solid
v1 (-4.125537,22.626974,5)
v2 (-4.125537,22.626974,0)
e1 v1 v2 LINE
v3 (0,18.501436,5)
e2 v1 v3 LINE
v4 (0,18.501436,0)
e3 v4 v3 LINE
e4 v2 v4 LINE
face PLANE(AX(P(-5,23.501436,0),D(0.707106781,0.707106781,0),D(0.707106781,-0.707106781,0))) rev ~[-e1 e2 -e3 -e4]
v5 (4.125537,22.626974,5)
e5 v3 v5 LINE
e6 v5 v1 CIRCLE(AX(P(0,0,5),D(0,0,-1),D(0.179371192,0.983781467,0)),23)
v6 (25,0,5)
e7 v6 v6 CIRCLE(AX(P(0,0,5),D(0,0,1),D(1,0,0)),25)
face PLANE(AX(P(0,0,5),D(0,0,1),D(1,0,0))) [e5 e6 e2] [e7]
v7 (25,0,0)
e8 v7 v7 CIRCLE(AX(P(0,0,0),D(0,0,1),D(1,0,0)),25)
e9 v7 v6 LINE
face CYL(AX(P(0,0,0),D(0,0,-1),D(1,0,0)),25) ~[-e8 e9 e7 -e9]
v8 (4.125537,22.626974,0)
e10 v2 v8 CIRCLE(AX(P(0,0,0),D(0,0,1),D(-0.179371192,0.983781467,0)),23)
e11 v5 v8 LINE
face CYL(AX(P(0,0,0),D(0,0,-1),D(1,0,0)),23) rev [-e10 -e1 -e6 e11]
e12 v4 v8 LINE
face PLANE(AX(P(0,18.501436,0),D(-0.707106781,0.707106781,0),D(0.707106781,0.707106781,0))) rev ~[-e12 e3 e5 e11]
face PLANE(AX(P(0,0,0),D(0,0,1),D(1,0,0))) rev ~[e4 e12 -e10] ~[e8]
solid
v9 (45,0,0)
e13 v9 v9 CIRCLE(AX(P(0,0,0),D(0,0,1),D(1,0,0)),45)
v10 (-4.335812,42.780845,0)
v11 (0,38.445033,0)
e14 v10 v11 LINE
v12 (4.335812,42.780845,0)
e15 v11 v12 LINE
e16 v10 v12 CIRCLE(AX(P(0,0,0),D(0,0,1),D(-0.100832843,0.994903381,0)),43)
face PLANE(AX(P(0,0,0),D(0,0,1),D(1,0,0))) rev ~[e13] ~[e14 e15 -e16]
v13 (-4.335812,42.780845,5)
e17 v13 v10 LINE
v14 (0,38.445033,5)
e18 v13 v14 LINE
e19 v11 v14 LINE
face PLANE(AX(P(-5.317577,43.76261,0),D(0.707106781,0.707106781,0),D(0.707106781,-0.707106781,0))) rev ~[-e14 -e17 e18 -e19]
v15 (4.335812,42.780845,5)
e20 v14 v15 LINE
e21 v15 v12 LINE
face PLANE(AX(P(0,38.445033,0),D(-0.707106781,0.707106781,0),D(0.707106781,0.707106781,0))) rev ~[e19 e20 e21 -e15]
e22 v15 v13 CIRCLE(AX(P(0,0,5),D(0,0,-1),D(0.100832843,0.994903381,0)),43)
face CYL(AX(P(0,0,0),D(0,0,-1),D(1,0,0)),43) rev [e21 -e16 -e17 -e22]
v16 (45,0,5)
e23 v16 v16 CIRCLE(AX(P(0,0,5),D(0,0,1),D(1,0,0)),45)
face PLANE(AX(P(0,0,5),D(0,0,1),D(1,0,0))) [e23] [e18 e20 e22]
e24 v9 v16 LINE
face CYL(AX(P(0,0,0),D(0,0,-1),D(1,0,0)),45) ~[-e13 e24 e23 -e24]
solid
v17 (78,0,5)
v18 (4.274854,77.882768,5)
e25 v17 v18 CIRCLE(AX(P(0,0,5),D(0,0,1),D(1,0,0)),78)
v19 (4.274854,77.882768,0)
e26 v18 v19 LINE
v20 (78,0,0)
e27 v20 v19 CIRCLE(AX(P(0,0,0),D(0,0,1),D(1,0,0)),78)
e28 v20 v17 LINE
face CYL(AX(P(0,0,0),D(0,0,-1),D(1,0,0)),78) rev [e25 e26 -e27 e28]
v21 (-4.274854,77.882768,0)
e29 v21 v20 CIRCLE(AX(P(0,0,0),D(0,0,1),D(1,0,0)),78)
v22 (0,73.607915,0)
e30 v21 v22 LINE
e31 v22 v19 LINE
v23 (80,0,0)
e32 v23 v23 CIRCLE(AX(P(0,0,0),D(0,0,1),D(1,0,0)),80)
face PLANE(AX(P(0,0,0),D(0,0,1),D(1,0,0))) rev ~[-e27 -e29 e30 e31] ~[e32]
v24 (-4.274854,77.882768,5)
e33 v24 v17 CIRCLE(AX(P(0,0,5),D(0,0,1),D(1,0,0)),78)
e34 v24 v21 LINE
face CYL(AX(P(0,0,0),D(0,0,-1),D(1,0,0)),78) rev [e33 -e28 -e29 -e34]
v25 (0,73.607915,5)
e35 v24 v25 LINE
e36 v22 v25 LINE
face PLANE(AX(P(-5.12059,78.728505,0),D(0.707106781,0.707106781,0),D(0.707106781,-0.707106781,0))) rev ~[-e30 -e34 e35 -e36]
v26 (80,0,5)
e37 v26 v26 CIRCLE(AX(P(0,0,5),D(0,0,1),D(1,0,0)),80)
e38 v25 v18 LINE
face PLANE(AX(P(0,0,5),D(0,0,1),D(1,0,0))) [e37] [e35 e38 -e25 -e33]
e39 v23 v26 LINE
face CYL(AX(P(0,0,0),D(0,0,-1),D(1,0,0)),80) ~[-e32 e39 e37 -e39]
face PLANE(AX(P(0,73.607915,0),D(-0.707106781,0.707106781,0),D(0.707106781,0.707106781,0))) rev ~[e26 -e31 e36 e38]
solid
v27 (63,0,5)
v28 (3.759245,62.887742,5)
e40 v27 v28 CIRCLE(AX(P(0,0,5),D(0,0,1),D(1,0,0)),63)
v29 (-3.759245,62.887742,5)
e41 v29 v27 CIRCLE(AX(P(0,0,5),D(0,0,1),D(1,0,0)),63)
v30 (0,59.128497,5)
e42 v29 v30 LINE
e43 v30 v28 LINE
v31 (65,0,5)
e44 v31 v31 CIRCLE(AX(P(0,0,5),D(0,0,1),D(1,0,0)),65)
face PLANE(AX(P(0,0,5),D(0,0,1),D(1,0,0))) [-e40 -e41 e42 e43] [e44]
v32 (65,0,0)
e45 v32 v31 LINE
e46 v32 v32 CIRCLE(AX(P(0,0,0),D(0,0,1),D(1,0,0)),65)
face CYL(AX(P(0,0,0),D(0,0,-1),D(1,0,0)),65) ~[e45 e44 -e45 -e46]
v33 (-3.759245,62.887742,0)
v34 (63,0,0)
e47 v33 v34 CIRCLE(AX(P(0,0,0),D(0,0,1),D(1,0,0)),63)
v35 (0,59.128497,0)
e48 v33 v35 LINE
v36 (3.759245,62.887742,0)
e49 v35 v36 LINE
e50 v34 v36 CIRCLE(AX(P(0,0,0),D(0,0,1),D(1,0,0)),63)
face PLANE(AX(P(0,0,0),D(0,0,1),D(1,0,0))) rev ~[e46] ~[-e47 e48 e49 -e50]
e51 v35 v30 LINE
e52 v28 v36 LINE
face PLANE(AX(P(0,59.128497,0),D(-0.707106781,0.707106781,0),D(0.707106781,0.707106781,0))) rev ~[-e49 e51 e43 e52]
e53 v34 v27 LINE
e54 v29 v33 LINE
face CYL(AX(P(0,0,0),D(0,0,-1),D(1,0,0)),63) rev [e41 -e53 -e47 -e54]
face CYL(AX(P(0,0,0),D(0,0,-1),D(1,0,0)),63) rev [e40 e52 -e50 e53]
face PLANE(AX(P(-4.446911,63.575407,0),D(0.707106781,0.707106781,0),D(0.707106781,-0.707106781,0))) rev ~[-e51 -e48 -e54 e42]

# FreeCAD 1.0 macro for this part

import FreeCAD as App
import Part
import Sketcher
Q = App.Units.Quantity


def add_polygon(sketch, points):
    """Adds a closed chain of lines whose ends are joined by coincident constraints."""
    first, n = sketch.GeometryCount, len(points)
    for a, b in zip(points, points[1:] + points[:1]):
        sketch.addGeometry(Part.LineSegment(App.Vector(*a, 0), App.Vector(*b, 0)), False)
    for i in range(n):
        sketch.addConstraint(Sketcher.Constraint("Coincident", first + i, 2, first + (i + 1) % n, 1))

doc = App.newDocument("Part")
params = doc.addObject("Spreadsheet::Sheet", "Params")
for row, (alias, value) in enumerate([
    ("sketch1_width", "5 mm"),
    ("pad1_length", "5 mm"),
    ("sketch2_diameter", "160 mm"),
    ("sketch2_diameter2", "156 mm"),
    ("pad2_length", "5 mm"),
    ("pad3_length", "5 mm"),
    ("sketch4_diameter", "130 mm"),
    ("sketch4_diameter2", "126 mm"),
    ("pad4_length", "5 mm"),
    ("sketch5_width", "5 mm"),
    ("pad5_length", "5 mm"),
    ("sketch6_diameter", "90 mm"),
    ("sketch6_diameter2", "86 mm"),
    ("pad6_length", "5 mm"),
    ("sketch7_width", "5 mm"),
    ("pad7_length", "5 mm"),
    ("sketch8_diameter", "50 mm"),
    ("sketch8_diameter2", "46 mm"),
    ("pad8_length", "5 mm"),
], start=1):
    params.set(f"A{row}", alias)
    params.set(f"B{row}", "=" + value)
    params.setAlias(f"B{row}", alias)

body = doc.addObject("PartDesign::Body", "Body")

# Sketch on XY plane
sketch1 = body.newObject("Sketcher::SketchObject", "Sketch")
sketch1.AttachmentSupport = (doc.getObject("XY_Plane"), [""])
sketch1.MapMode = "FlatFace"
add_polygon(sketch1, [(0, 79), (-5, 79), (0, 74), (5, 79)])  # lines 0-3
sketch1.addConstraint(Sketcher.Constraint("Horizontal", 3))
sketch1.addConstraint(Sketcher.Constraint("PointOnObject", 1, 2, -2))
sketch1.addConstraint(Sketcher.Constraint("PointOnObject", 3, 2, -2))
sketch1.addConstraint(Sketcher.Constraint("Perpendicular", 1, 2))
sketch1.addConstraint(Sketcher.Constraint("DistanceX", 3, 2, 3, 1, 5.0))
sketch1.addConstraint(Sketcher.Constraint("Angle", 1, Q("-45 deg")))
sketch1.addConstraint(Sketcher.Constraint("Distance", 0, 5.12201))
sketch1.addConstraint(Sketcher.Constraint("DistanceY", -1, 1, 0, 2, 78.728505))
sketch1.setExpression("Constraints[8]", "Params.sketch1_width")
pad1 = body.newObject("PartDesign::Pad", "Pad")
pad1.Profile = sketch1
pad1.setExpression("Length", "Params.pad1_length")

# Sketch on XY plane
sketch2 = body.newObject("Sketcher::SketchObject", "Sketch001")
sketch2.AttachmentSupport = (doc.getObject("XY_Plane"), [""])
sketch2.MapMode = "FlatFace"
sketch2.addGeometry(Part.Circle(App.Vector(0, 0, 0), App.Vector(0, 0, 1), 80), False)
sketch2.addGeometry(Part.Circle(App.Vector(0, 0, 0), App.Vector(0, 0, 1), 78), False)
sketch2.addConstraint(Sketcher.Constraint("Coincident", 0, 3, -1, 1))
sketch2.addConstraint(Sketcher.Constraint("Coincident", 1, 3, -1, 1))
sketch2.addConstraint(Sketcher.Constraint("Diameter", 0, 160.0))
sketch2.addConstraint(Sketcher.Constraint("Diameter", 1, 156.0))
sketch2.setExpression("Constraints[2]", "Params.sketch2_diameter")
sketch2.setExpression("Constraints[3]", "Params.sketch2_diameter2")
pad2 = body.newObject("PartDesign::Pad", "Pad001")
pad2.Profile = sketch2
pad2.setExpression("Length", "Params.pad2_length")
body2 = doc.addObject("PartDesign::Body", "Body001")

# Sketch on XY plane
sketch3 = body2.newObject("Sketcher::SketchObject", "Sketch002")
sketch3.AttachmentSupport = (doc.getObject("XY_Plane001"), [""])
sketch3.MapMode = "FlatFace"
add_polygon(sketch3, [(4.4, 63.6), (0, 64.1), (-4.4, 63.6), (0, 59.1)])  # lines 0-3
sketch3.addConstraint(Sketcher.Constraint("Symmetric", 1, 2, 3, 2, -2))
sketch3.addConstraint(Sketcher.Constraint("PointOnObject", 0, 2, -2))
sketch3.addConstraint(Sketcher.Constraint("PointOnObject", 2, 2, -2))
sketch3.addConstraint(Sketcher.Constraint("Perpendicular", 2, 3))
sketch3.addConstraint(Sketcher.Constraint("DistanceY", 2, 2, 0, 2, 5.0))
sketch3.addConstraint(Sketcher.Constraint("Distance", 2, 6.288881))
sketch3.addConstraint(Sketcher.Constraint("DistanceY", -1, 1, 0, 2, 64.128497))
pad3 = body2.newObject("PartDesign::Pad", "Pad002")
pad3.Profile = sketch3
pad3.setExpression("Length", "Params.pad3_length")

# Sketch on XY plane
sketch4 = body2.newObject("Sketcher::SketchObject", "Sketch003")
sketch4.AttachmentSupport = (doc.getObject("XY_Plane001"), [""])
sketch4.MapMode = "FlatFace"
sketch4.addGeometry(Part.Circle(App.Vector(0, 0, 0), App.Vector(0, 0, 1), 65), False)
sketch4.addGeometry(Part.Circle(App.Vector(0, 0, 0), App.Vector(0, 0, 1), 63), False)
sketch4.addConstraint(Sketcher.Constraint("Coincident", 0, 3, -1, 1))
sketch4.addConstraint(Sketcher.Constraint("Coincident", 1, 3, -1, 1))
sketch4.addConstraint(Sketcher.Constraint("Diameter", 0, 130.0))
sketch4.addConstraint(Sketcher.Constraint("Diameter", 1, 126.0))
sketch4.setExpression("Constraints[2]", "Params.sketch4_diameter")
sketch4.setExpression("Constraints[3]", "Params.sketch4_diameter2")
pad4 = body2.newObject("PartDesign::Pad", "Pad003")
pad4.Profile = sketch4
pad4.setExpression("Length", "Params.pad4_length")
body3 = doc.addObject("PartDesign::Body", "Body002")

# Sketch on XY plane
sketch5 = body3.newObject("Sketcher::SketchObject", "Sketch004")
sketch5.AttachmentSupport = (doc.getObject("XY_Plane002"), [""])
sketch5.MapMode = "FlatFace"
add_polygon(sketch5, [(0, 43), (-5, 44), (0, 38), (5, 43)])  # lines 0-3
sketch5.addConstraint(Sketcher.Constraint("Horizontal", 3))
sketch5.addConstraint(Sketcher.Constraint("PointOnObject", 1, 2, -2))
sketch5.addConstraint(Sketcher.Constraint("PointOnObject", 3, 2, -2))
sketch5.addConstraint(Sketcher.Constraint("Perpendicular", 1, 2))
sketch5.addConstraint(Sketcher.Constraint("DistanceX", 3, 2, 3, 1, 5.0))
sketch5.addConstraint(Sketcher.Constraint("Angle", 1, Q("-45 deg")))
sketch5.addConstraint(Sketcher.Constraint("Distance", 0, 5.327051))
sketch5.addConstraint(Sketcher.Constraint("DistanceY", -1, 1, 0, 2, 43.76261))
sketch5.setExpression("Constraints[8]", "Params.sketch5_width")
pad5 = body3.newObject("PartDesign::Pad", "Pad004")
pad5.Profile = sketch5
pad5.setExpression("Length", "Params.pad5_length")

# Sketch on XY plane
sketch6 = body3.newObject("Sketcher::SketchObject", "Sketch005")
sketch6.AttachmentSupport = (doc.getObject("XY_Plane002"), [""])
sketch6.MapMode = "FlatFace"
sketch6.addGeometry(Part.Circle(App.Vector(0, 0, 0), App.Vector(0, 0, 1), 45), False)
sketch6.addGeometry(Part.Circle(App.Vector(0, 0, 0), App.Vector(0, 0, 1), 43), False)
sketch6.addConstraint(Sketcher.Constraint("Coincident", 0, 3, -1, 1))
sketch6.addConstraint(Sketcher.Constraint("Coincident", 1, 3, -1, 1))
sketch6.addConstraint(Sketcher.Constraint("Diameter", 0, 90.0))
sketch6.addConstraint(Sketcher.Constraint("Diameter", 1, 86.0))
sketch6.setExpression("Constraints[2]", "Params.sketch6_diameter")
sketch6.setExpression("Constraints[3]", "Params.sketch6_diameter2")
pad6 = body3.newObject("PartDesign::Pad", "Pad005")
pad6.Profile = sketch6
pad6.setExpression("Length", "Params.pad6_length")
body4 = doc.addObject("PartDesign::Body", "Body003")

# Sketch on XY plane
sketch7 = body4.newObject("Sketcher::SketchObject", "Sketch006")
sketch7.AttachmentSupport = (doc.getObject("XY_Plane003"), [""])
sketch7.MapMode = "FlatFace"
add_polygon(sketch7, [(0, 23.5), (-5, 23.5), (0, 18.5), (4.6, 23.1)])  # lines 0-3
sketch7.addConstraint(Sketcher.Constraint("Horizontal", 0))
sketch7.addConstraint(Sketcher.Constraint("PointOnObject", 1, 2, -2))
sketch7.addConstraint(Sketcher.Constraint("PointOnObject", 3, 2, -2))
sketch7.addConstraint(Sketcher.Constraint("Perpendicular", 1, 2))
sketch7.addConstraint(Sketcher.Constraint("DistanceX", 0, 2, 0, 1, 5.0))
sketch7.addConstraint(Sketcher.Constraint("Angle", 1, Q("-45 deg")))
sketch7.addConstraint(Sketcher.Constraint("Distance", 3, 4.615579))
sketch7.addConstraint(Sketcher.Constraint("DistanceY", -1, 1, 2, 2, 23.099479))
sketch7.setExpression("Constraints[8]", "Params.sketch7_width")
pad7 = body4.newObject("PartDesign::Pad", "Pad006")
pad7.Profile = sketch7
pad7.setExpression("Length", "Params.pad7_length")

# Sketch on XY plane
sketch8 = body4.newObject("Sketcher::SketchObject", "Sketch007")
sketch8.AttachmentSupport = (doc.getObject("XY_Plane003"), [""])
sketch8.MapMode = "FlatFace"
sketch8.addGeometry(Part.Circle(App.Vector(0, 0, 0), App.Vector(0, 0, 1), 25), False)
sketch8.addGeometry(Part.Circle(App.Vector(0, 0, 0), App.Vector(0, 0, 1), 23), False)
sketch8.addConstraint(Sketcher.Constraint("Coincident", 0, 3, -1, 1))
sketch8.addConstraint(Sketcher.Constraint("Coincident", 1, 3, -1, 1))
sketch8.addConstraint(Sketcher.Constraint("Diameter", 0, 50.0))
sketch8.addConstraint(Sketcher.Constraint("Diameter", 1, 46.0))
sketch8.setExpression("Constraints[2]", "Params.sketch8_diameter")
sketch8.setExpression("Constraints[3]", "Params.sketch8_diameter2")
pad8 = body4.newObject("PartDesign::Pad", "Pad007")
pad8.Profile = sketch8
pad8.setExpression("Length", "Params.pad8_length")

doc.recompute()
